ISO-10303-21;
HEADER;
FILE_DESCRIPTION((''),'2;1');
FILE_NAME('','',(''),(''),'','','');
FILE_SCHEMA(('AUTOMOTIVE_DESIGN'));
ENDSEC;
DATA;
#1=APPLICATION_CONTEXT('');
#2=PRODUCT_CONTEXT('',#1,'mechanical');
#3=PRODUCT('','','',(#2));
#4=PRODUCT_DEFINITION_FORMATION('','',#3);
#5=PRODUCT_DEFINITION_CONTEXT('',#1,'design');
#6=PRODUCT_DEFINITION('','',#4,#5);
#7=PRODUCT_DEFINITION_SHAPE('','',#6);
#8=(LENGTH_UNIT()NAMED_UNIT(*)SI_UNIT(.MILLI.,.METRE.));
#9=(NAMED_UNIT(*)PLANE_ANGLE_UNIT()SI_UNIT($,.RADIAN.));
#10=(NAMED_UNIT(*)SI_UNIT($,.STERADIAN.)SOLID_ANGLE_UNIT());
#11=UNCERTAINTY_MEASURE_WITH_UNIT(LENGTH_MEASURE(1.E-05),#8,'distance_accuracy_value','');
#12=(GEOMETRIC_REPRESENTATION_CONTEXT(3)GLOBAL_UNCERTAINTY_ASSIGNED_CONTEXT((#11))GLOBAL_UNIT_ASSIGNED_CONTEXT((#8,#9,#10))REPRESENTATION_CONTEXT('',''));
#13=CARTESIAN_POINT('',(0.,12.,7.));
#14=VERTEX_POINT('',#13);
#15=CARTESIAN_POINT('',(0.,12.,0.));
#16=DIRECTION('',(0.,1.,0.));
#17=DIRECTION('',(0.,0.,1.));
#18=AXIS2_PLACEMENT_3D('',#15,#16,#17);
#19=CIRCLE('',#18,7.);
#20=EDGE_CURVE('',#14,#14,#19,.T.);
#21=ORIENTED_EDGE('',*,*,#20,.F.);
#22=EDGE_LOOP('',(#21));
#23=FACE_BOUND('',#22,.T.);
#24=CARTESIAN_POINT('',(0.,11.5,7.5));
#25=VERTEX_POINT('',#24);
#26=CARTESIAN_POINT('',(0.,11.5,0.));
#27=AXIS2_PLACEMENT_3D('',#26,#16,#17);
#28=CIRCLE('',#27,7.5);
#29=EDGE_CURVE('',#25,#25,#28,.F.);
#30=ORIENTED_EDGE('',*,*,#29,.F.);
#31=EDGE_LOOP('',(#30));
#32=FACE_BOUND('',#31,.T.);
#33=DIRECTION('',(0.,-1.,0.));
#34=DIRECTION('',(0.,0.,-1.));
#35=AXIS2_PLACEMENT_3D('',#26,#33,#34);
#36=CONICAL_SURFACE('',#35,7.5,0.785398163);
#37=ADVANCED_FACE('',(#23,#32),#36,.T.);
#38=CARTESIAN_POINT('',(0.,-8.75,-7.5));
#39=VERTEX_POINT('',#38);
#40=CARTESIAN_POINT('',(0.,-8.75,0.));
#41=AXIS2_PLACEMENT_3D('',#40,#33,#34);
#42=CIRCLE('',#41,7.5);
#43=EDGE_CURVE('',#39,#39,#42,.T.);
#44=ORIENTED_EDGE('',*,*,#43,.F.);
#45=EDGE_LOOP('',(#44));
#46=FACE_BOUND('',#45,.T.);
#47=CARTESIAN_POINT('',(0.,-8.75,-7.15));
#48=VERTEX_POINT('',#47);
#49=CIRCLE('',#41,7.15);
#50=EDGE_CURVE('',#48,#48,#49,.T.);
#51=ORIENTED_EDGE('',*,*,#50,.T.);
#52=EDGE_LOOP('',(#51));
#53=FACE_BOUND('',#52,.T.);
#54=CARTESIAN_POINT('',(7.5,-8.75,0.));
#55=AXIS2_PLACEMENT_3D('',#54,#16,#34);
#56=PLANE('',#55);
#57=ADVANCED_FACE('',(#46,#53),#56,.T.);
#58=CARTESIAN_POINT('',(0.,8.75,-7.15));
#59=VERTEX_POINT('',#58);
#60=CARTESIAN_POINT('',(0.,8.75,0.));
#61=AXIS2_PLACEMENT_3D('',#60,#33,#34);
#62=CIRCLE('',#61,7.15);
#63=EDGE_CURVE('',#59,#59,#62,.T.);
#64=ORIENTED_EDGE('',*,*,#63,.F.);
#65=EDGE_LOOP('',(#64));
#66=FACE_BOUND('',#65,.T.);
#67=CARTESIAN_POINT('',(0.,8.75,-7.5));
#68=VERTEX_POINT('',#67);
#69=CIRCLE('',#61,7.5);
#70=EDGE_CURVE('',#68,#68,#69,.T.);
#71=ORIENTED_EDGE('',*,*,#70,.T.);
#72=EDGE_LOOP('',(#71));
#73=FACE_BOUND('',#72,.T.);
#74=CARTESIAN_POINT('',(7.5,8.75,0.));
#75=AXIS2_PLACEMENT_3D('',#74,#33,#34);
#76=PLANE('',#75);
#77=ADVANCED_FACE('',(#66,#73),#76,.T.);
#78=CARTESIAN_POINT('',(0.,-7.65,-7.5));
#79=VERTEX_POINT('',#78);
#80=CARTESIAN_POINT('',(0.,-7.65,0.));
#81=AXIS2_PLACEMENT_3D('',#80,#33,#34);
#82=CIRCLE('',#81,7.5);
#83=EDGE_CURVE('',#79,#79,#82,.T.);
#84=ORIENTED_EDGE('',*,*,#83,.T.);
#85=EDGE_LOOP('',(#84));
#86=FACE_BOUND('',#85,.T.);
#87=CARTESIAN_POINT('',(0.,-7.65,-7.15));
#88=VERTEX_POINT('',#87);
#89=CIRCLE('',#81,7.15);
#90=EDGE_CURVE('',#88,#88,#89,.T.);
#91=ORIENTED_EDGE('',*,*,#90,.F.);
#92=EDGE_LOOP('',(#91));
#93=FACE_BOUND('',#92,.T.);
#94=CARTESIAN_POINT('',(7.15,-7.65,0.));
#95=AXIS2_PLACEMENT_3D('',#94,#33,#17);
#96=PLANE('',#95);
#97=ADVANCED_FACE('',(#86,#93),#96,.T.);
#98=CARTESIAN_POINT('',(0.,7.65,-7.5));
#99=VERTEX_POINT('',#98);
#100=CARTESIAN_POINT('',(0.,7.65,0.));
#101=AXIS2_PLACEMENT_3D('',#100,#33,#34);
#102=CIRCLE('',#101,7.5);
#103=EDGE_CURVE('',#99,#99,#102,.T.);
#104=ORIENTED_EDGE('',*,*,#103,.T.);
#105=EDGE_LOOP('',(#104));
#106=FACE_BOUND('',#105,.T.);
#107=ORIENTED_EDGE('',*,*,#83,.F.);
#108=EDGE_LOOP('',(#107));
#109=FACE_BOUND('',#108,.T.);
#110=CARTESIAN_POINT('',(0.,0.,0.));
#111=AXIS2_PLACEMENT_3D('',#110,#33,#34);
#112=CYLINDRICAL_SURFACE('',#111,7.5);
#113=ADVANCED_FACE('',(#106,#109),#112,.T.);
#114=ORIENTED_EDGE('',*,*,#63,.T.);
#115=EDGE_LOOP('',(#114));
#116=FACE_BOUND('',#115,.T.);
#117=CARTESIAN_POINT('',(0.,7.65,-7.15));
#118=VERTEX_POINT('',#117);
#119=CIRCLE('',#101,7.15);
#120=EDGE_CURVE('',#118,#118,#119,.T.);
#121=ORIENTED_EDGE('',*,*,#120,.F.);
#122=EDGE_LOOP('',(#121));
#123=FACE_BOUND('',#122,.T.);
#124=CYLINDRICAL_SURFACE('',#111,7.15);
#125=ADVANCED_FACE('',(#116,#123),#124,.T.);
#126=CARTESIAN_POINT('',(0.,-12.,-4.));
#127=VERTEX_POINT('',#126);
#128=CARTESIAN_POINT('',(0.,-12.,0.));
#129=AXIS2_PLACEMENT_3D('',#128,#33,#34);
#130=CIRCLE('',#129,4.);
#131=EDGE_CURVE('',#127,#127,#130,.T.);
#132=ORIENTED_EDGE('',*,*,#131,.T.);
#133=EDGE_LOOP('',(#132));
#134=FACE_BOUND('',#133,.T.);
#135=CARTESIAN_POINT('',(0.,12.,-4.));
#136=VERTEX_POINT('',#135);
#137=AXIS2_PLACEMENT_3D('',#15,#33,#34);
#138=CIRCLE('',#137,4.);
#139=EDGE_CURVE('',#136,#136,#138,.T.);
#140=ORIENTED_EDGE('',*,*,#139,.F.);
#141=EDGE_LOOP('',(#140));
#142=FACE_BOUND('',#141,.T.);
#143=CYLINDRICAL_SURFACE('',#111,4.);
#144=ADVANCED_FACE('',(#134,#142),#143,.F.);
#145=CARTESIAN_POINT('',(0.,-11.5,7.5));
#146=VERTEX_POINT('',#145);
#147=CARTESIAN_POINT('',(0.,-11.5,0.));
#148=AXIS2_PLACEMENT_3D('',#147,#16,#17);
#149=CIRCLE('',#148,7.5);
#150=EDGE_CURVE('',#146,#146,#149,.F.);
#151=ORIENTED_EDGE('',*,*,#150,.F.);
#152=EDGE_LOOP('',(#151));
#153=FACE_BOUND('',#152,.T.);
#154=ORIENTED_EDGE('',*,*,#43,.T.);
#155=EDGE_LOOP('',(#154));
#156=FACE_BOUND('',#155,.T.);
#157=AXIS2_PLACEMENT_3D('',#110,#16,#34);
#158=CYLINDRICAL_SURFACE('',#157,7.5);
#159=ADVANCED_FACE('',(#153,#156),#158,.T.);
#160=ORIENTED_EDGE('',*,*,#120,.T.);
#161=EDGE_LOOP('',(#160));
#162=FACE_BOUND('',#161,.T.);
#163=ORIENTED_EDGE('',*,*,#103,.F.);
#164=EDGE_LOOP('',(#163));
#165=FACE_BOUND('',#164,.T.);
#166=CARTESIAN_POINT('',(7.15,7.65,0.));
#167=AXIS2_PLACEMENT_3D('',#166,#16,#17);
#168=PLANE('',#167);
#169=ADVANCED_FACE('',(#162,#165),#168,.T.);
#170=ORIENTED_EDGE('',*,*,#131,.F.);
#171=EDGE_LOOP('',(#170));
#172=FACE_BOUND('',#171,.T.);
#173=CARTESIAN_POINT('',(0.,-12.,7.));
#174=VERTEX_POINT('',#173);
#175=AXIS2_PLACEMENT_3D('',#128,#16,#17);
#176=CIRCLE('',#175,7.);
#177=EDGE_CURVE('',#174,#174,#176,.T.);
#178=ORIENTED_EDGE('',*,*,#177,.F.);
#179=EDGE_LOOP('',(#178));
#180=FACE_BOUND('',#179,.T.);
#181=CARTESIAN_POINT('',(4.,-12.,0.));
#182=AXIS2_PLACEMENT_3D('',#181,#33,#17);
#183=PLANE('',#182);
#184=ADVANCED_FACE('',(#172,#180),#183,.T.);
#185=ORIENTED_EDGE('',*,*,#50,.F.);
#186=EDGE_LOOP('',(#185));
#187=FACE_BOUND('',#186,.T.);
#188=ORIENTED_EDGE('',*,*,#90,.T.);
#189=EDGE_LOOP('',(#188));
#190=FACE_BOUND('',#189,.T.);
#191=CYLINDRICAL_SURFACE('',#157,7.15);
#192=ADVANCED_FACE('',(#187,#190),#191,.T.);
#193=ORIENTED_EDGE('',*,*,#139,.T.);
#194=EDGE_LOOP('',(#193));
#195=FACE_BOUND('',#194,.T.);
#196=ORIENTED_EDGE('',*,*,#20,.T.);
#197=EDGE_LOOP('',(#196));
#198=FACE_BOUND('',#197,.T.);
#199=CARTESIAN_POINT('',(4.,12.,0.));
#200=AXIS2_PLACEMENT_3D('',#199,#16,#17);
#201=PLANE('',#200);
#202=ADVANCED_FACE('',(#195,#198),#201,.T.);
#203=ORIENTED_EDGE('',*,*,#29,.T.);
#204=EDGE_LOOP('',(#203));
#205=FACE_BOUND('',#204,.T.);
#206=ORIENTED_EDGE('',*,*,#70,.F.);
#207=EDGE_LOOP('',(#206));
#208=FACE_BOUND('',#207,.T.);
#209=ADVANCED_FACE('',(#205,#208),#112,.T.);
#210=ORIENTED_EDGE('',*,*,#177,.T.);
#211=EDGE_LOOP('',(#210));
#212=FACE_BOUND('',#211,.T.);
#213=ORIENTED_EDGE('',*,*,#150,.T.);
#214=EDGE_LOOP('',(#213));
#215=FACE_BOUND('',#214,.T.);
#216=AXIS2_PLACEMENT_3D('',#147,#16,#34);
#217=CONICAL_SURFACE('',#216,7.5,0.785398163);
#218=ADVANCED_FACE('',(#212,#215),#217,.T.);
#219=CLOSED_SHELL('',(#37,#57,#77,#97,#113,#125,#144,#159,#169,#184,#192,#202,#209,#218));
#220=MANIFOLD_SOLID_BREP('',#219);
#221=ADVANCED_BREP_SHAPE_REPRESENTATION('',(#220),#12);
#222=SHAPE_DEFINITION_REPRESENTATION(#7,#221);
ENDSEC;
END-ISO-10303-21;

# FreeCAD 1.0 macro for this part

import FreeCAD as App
import Part
import Sketcher

V = App.Vector


def edges_at(feature, points):
    """Names of the edges that pass closest to the given points."""
    edges = feature.Shape.Edges
    near = lambda p: min(range(len(edges)), key=lambda i: edges[i].distToShape(Part.Vertex(*p))[0])
    return sorted({f"Edge{near(p) + 1}" for p in points})

doc = App.newDocument("Part")
body = doc.addObject("PartDesign::Body", "Body")

# Sketch on XY plane
sketch1 = body.newObject("Sketcher::SketchObject", "Sketch")
sketch1.AttachmentSupport = (doc.getObject("XY_Plane"), [""])
sketch1.MapMode = "FlatFace"
sketch1.addGeometry([
    Part.LineSegment(V(4, 12, 0), V(4, 0, 0)),  # 0
    Part.LineSegment(V(4, 0, 0), V(7.5, 0, 0)),  # 1
    Part.LineSegment(V(7.5, 0, 0), V(7.5, 7.65, 0)),  # 2
    Part.LineSegment(V(7.5, 7.65, 0), V(7.15, 7.65, 0)),  # 3
    Part.LineSegment(V(7.15, 7.65, 0), V(7.15, 8.75, 0)),  # 4
    Part.LineSegment(V(7.15, 8.75, 0), V(7.5, 8.75, 0)),  # 5
    Part.LineSegment(V(7.5, 8.75, 0), V(7.5, 12, 0)),  # 6
    Part.LineSegment(V(7.5, 12, 0), V(4, 12, 0)),  # 7
], False)
sketch1.addConstraint([
    Sketcher.Constraint("Coincident", 0, 2, 1, 1),
    Sketcher.Constraint("Coincident", 1, 2, 2, 1),
    Sketcher.Constraint("Coincident", 2, 2, 3, 1),
    Sketcher.Constraint("Coincident", 3, 2, 4, 1),
    Sketcher.Constraint("Coincident", 4, 2, 5, 1),
    Sketcher.Constraint("Coincident", 5, 2, 6, 1),
    Sketcher.Constraint("Coincident", 6, 2, 7, 1),
    Sketcher.Constraint("Coincident", 7, 2, 0, 1),
    Sketcher.Constraint("Vertical", 0),
    Sketcher.Constraint("Horizontal", 1),
    Sketcher.Constraint("Vertical", 2),
    Sketcher.Constraint("Horizontal", 3),
    Sketcher.Constraint("Vertical", 4),
    Sketcher.Constraint("Horizontal", 5),
    Sketcher.Constraint("Vertical", 6),
    Sketcher.Constraint("Horizontal", 7),
    Sketcher.Constraint("PointOnObject", 0, 2, -1),
    Sketcher.Constraint("Vertical", 2, 2, 5, 2),
    Sketcher.Constraint("DistanceY", 0, 2, 0, 1, 12.0),
    Sketcher.Constraint("DistanceX", 1, 1, 1, 2, 3.5),
    Sketcher.Constraint("DistanceY", 4, 1, 4, 2, 1.1),
    Sketcher.Constraint("DistanceX", -1, 1, 0, 2, 4.0),
    Sketcher.Constraint("DistanceX", 3, 2, 3, 1, 0.35),
    Sketcher.Constraint("DistanceY", 2, 1, 2, 2, 7.65),
])
revolution = body.newObject("PartDesign::Revolution", "Revolution")
revolution.Profile = sketch1
revolution.ReferenceAxis = (sketch1, ["V_Axis"])
revolution.Angle = 360
doc.recompute()

chamfer = body.newObject("PartDesign::Chamfer", "Chamfer")
chamfer.Base = (revolution, edges_at(revolution, [(-7.5, 12, 0)]))
chamfer.Size = 0.5
body2 = doc.addObject("PartDesign::Body", "Body001")
doc.recompute()

body2.BaseFeature = body
doc.recompute()

mirroring = doc.addObject("Part::Mirroring", "Mirroring")
mirroring.Source = body
mirroring.Base = V(7.5, 0, 0)
mirroring.Normal = V(0, -1, 0)
body3 = doc.addObject("PartDesign::Body", "Body002")
body3.BaseFeature = mirroring
boolean = body2.newObject("PartDesign::Boolean", "Boolean")
boolean.Type = "Fuse"
boolean.addObjects([body3])
doc.recompute()
mirroring.Visibility = False

doc.recompute()
